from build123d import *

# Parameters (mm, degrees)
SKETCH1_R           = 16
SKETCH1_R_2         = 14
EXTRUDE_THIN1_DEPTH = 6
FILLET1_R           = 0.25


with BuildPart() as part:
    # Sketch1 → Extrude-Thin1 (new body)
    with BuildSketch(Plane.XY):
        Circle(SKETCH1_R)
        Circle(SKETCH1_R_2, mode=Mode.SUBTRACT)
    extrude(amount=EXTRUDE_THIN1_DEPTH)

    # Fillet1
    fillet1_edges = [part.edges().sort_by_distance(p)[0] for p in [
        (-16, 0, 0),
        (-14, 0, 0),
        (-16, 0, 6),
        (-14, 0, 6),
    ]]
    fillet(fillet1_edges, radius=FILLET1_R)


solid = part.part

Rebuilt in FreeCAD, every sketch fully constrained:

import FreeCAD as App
import Part
import Sketcher
Q = App.Units.Quantity


def edges_at(feature, points):
    """Names of the edges that pass closest to the given points."""
    edges = feature.Shape.Edges
    near = lambda p: min(range(len(edges)), key=lambda i: edges[i].distToShape(Part.Vertex(*p))[0])
    return sorted({f"Edge{near(p) + 1}" for p in points})

doc = App.newDocument("Part")
body = doc.addObject("PartDesign::Body", "Body")

sketch1 = body.newObject("Sketcher::SketchObject", "Sketch")
sketch1.AttachmentSupport = (doc.getObject("XY_Plane"), [""])
sketch1.MapMode = "FlatFace"
sketch1.addGeometry([
    Part.Circle(App.Vector(0, 0, 0), App.Vector(0, 0, 1), 16),
    Part.Circle(App.Vector(0, 0, 0), App.Vector(0, 0, 1), 14),
], False)
sketch1.addConstraint([
    Sketcher.Constraint("Coincident", 0, 3, -1, 1),
    Sketcher.Constraint("Coincident", 1, 3, -1, 1),
    Sketcher.Constraint("Diameter", 0, Q("32 mm")),
    Sketcher.Constraint("Diameter", 1, Q("28 mm")),
])
pad1 = body.newObject("PartDesign::Pad", "Pad")
pad1.Profile = sketch1
pad1.Length = 6
doc.recompute()

fillet = body.newObject("PartDesign::Fillet", "Fillet")
fillet.Base = (pad1, edges_at(pad1, [
    (-16, 0, 0),
    (-14, 0, 0),
    (-16, 0, 6),
    (-14, 0, 6),
]))
fillet.Radius = 0.25

doc.recompute()
